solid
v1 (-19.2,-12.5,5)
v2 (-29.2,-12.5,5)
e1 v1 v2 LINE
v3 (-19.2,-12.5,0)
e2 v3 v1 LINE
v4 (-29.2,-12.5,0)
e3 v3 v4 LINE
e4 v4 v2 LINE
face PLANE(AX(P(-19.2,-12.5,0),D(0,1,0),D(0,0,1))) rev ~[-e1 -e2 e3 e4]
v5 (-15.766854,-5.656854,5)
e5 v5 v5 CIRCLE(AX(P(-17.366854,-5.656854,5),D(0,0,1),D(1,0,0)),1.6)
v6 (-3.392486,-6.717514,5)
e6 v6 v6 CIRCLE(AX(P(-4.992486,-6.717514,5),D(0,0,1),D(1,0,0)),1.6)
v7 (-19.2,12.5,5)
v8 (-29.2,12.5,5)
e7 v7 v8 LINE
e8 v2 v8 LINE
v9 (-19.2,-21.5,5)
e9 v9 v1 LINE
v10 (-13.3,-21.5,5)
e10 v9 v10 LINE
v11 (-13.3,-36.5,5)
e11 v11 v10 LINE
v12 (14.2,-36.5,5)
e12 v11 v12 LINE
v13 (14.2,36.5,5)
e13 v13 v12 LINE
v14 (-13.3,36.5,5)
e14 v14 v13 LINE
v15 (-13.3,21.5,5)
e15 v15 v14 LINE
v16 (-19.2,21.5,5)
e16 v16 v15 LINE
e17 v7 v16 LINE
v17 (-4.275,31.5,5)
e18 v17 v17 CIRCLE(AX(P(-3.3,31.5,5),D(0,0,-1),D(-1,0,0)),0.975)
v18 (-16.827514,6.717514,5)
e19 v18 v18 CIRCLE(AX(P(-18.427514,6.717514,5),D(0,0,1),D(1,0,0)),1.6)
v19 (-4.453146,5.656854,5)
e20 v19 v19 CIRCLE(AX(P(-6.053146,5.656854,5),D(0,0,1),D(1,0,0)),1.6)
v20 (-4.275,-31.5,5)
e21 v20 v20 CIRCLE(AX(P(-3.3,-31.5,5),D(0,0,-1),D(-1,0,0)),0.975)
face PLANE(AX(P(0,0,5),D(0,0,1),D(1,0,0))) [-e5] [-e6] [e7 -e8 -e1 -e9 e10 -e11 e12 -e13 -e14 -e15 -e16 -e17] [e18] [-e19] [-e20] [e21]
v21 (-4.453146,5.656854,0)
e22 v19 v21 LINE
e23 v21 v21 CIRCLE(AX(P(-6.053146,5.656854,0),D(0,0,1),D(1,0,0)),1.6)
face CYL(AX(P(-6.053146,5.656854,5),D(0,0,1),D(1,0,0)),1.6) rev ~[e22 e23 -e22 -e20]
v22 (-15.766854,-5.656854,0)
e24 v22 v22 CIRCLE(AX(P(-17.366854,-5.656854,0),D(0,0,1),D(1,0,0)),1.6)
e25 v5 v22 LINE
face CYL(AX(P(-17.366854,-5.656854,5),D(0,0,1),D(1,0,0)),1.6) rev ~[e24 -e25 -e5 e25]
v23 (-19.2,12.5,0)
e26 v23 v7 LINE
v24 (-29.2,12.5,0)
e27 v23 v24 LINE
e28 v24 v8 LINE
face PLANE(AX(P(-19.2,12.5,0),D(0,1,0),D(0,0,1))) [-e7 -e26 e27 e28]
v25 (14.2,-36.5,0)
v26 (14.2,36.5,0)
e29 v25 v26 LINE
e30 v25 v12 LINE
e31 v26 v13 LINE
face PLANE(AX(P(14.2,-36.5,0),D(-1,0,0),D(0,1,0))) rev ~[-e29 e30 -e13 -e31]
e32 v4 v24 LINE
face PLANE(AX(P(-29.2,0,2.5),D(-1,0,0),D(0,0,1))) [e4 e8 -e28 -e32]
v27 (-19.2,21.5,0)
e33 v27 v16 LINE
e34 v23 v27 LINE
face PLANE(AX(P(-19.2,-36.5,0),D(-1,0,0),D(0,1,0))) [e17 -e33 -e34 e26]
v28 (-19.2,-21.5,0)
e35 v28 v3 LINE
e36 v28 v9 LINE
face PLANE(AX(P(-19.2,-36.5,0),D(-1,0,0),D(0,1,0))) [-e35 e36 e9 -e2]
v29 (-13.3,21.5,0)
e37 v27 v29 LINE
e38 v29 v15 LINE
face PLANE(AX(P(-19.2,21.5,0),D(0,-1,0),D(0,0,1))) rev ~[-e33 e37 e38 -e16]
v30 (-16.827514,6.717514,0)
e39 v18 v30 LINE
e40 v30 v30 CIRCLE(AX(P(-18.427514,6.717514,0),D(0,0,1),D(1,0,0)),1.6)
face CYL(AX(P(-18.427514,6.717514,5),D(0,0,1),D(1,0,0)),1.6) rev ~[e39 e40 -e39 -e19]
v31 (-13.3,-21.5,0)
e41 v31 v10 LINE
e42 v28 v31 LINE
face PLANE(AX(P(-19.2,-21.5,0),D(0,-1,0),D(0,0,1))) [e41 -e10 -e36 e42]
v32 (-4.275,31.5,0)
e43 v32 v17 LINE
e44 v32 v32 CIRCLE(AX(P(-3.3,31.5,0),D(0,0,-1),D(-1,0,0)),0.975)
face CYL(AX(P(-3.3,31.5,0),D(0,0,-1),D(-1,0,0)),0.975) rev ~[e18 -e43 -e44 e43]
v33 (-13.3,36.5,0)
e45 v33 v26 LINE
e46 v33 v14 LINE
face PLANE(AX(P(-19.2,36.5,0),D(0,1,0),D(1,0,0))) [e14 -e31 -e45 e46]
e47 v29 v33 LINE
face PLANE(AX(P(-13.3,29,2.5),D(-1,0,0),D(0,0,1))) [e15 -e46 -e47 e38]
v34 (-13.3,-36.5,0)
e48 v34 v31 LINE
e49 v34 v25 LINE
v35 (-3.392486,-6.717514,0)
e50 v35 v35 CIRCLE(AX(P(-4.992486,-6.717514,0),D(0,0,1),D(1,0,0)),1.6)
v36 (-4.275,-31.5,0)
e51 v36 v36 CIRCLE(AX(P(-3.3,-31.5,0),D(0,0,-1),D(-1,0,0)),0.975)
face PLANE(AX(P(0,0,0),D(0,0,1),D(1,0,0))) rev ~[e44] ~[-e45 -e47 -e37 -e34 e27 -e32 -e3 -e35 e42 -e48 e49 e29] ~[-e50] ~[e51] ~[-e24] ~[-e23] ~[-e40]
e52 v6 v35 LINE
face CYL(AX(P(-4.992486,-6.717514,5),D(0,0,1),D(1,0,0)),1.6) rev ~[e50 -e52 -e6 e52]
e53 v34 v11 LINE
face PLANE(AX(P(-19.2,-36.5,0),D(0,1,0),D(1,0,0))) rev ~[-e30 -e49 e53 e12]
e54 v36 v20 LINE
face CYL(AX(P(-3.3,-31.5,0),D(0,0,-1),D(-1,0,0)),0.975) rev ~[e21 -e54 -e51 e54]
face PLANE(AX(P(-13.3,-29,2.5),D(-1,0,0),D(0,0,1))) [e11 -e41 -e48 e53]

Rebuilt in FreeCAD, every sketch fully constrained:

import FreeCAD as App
import Part
import Sketcher

V = App.Vector


def add_polygon(sketch, points):
    """Adds a closed chain of lines whose ends are joined by coincident constraints."""
    first, n = sketch.GeometryCount, len(points)
    for a, b in zip(points, points[1:] + points[:1]):
        sketch.addGeometry(Part.LineSegment(App.Vector(*a, 0), App.Vector(*b, 0)), False)
    for i in range(n):
        sketch.addConstraint(Sketcher.Constraint("Coincident", first + i, 2, first + (i + 1) % n, 1))

doc = App.newDocument("Part")
params = doc.addObject("Spreadsheet::Sheet", "Params")
for row, (alias, value) in enumerate([
    ("sketch1_height", "73 mm"),
    ("sketch1_width", "38.4 mm"),
    ("pad1_length", "5 mm"),
    ("sketch2_width", "25 mm"),
    ("sketch2_height", "5 mm"),
    ("pad2_length", "10 mm"),
    ("sketch3_diameter", "3.2 mm"),
    ("pocket1_length", "25 mm"),
    ("sketch4_width", "15 mm"),
    ("sketch4_height", "5 mm"),
    ("pocket2_length", "5.9 mm"),
    ("sketch5_width", "5 mm"),
    ("sketch5_height", "73 mm"),
    ("pocket3_length", "10 mm"),
    ("sketch6_diameter", "1.95 mm"),
    ("pocket4_length", "13 mm"),
], start=1):
    params.set(f"A{row}", alias)
    params.set(f"B{row}", "=" + value)
    params.setAlias(f"B{row}", alias)

body = doc.addObject("PartDesign::Body", "Body")

# Sketch on XY plane
sketch1 = body.newObject("Sketcher::SketchObject", "Sketch")
sketch1.AttachmentSupport = (doc.getObject("XY_Plane"), [""])
sketch1.MapMode = "FlatFace"
add_polygon(sketch1, [(-19, 36), (-19, -36), (19, -36), (19, 36)])  # lines 0-3
sketch1.addConstraint([
    Sketcher.Constraint("Vertical", 0),
    Sketcher.Constraint("Horizontal", 1),
    Sketcher.Constraint("Vertical", 2),
    Sketcher.Constraint("Horizontal", 3),
    Sketcher.Constraint("Symmetric", 0, 2, 2, 2, -1, 1),
    Sketcher.Constraint("DistanceY", 0, 2, 0, 1, 73.0),
    Sketcher.Constraint("DistanceX", 1, 1, 1, 2, 38.4),
])
sketch1.setExpression("Constraints[9]", "Params.sketch1_height")
sketch1.setExpression("Constraints[10]", "Params.sketch1_width")
pad1 = body.newObject("PartDesign::Pad", "Pad")
pad1.Profile = sketch1
pad1.setExpression("Length", "Params.pad1_length")

# Sketch on YZ plane
sketch2 = body.newObject("Sketcher::SketchObject", "Sketch001")
sketch2.AttachmentSupport = (doc.getObject("YZ_Plane"), [""])
sketch2.MapMode = "FlatFace"
sketch2.AttachmentOffset = App.Placement(V(0, 0, -19.2), App.Rotation())
add_polygon(sketch2, [(12, 0), (-12, 0), (-12, 5), (12, 5)])  # lines 0-3
sketch2.addConstraint([
    Sketcher.Constraint("Horizontal", 0),
    Sketcher.Constraint("Vertical", 1),
    Sketcher.Constraint("Horizontal", 2),
    Sketcher.Constraint("Vertical", 3),
    Sketcher.Constraint("Symmetric", 0, 2, 3, 2, -1, 1),
    Sketcher.Constraint("DistanceX", 0, 2, 0, 1, 25.0),
    Sketcher.Constraint("DistanceY", 1, 1, 1, 2, 5.0),
])
sketch2.setExpression("Constraints[9]", "Params.sketch2_width")
sketch2.setExpression("Constraints[10]", "Params.sketch2_height")
pad2 = body.newObject("PartDesign::Pad", "Pad001")
pad2.Profile = sketch2
pad2.setExpression("Length", "Params.pad2_length")
pad2.Reversed = True

# Sketch on XY plane
sketch3 = body.newObject("Sketcher::SketchObject", "Sketch002")
sketch3.AttachmentSupport = (doc.getObject("XY_Plane"), [""])
sketch3.MapMode = "FlatFace"
sketch3.AttachmentOffset = App.Placement(V(0, 0, 5), App.Rotation())
sketch3.addGeometry([
    Part.Circle(V(-18.4, 6.7, 0), V(0, 0, 1), 1.6),
    Part.Circle(V(-6.1, 5.7, 0), V(0, 0, 1), 1.6),
    Part.Circle(V(-17.4, -5.7, 0), V(0, 0, 1), 1.6),
    Part.Circle(V(-5, -6.7, 0), V(0, 0, 1), 1.6),
], False)
sketch3.addConstraint([
    Sketcher.Constraint("Equal", 0, 1),
    Sketcher.Constraint("Equal", 1, 2),
    Sketcher.Constraint("Equal", 2, 3),
    Sketcher.Constraint("Diameter", 0, 3.2),
    Sketcher.Constraint("DistanceX", 0, 3, 1, 3, 12.374369),
    Sketcher.Constraint("DistanceY", 1, 3, 0, 3, 1.06066),
    Sketcher.Constraint("DistanceX", 0, 3, 2, 3, 1.06066),
    Sketcher.Constraint("DistanceY", 2, 3, 0, 3, 12.374369),
    Sketcher.Constraint("DistanceX", 1, 3, 3, 3, 1.06066),
    Sketcher.Constraint("DistanceY", 3, 3, 1, 3, 12.374369),
    Sketcher.Constraint("DistanceX", 0, 3, -1, 1, 18.427514),
    Sketcher.Constraint("DistanceY", -1, 1, 0, 3, 6.717514),
])
sketch3.setExpression("Constraints[3]", "Params.sketch3_diameter")
pocket1 = body.newObject("PartDesign::Pocket", "Pocket")
pocket1.Profile = sketch3
pocket1.setExpression("Length", "Params.pocket1_length")

# Sketch on YZ plane
sketch4 = body.newObject("Sketcher::SketchObject", "Sketch003")
sketch4.AttachmentSupport = (doc.getObject("YZ_Plane"), [""])
sketch4.MapMode = "FlatFace"
sketch4.AttachmentOffset = App.Placement(V(0, 0, -19.2), App.Rotation())
add_polygon(sketch4, [(36, 0), (22, 0), (22, 5), (36, 5)])  # lines 0-3
add_polygon(sketch4, [(-22, 0), (-36, 0), (-36, 5), (-22, 5)])  # lines 4-7
sketch4.addConstraint([
    Sketcher.Constraint("Horizontal", 0),
    Sketcher.Constraint("Vertical", 1),
    Sketcher.Constraint("Horizontal", 2),
    Sketcher.Constraint("Vertical", 3),
    Sketcher.Constraint("Horizontal", 4),
    Sketcher.Constraint("Vertical", 5),
    Sketcher.Constraint("Horizontal", 6),
    Sketcher.Constraint("Vertical", 7),
    Sketcher.Constraint("Symmetric", 3, 2, 4, 2, -1, 1),
    Sketcher.Constraint("Symmetric", 1, 2, 6, 2, -2),
    Sketcher.Constraint("PointOnObject", 0, 2, -1),
    Sketcher.Constraint("DistanceX", 0, 2, 0, 1, 15.0),
    Sketcher.Constraint("DistanceY", 1, 1, 1, 2, 5.0),
    Sketcher.Constraint("DistanceX", 4, 2, 0, 2, 58.0),
])
sketch4.setExpression("Constraints[19]", "Params.sketch4_width")
sketch4.setExpression("Constraints[20]", "Params.sketch4_height")
pocket2 = body.newObject("PartDesign::Pocket", "Pocket001")
pocket2.Profile = sketch4
pocket2.setExpression("Length", "Params.pocket2_length")
pocket2.Reversed = True

# Sketch on XY plane
sketch5 = body.newObject("Sketcher::SketchObject", "Sketch004")
sketch5.AttachmentSupport = (doc.getObject("XY_Plane"), [""])
sketch5.MapMode = "FlatFace"
add_polygon(sketch5, [(19, 36), (19, -36), (14, -36), (14, 36)])  # lines 0-3
sketch5.addConstraint([
    Sketcher.Constraint("Vertical", 0),
    Sketcher.Constraint("Horizontal", 1),
    Sketcher.Constraint("Vertical", 2),
    Sketcher.Constraint("Horizontal", 3),
    Sketcher.Constraint("DistanceX", 1, 2, 1, 1, 5.0),
    Sketcher.Constraint("DistanceY", 0, 2, 0, 1, 73.0),
    Sketcher.Constraint("DistanceX", -1, 1, 0, 2, 19.2),
    Sketcher.Constraint("DistanceY", 0, 2, -1, 1, 36.5),
])
sketch5.setExpression("Constraints[8]", "Params.sketch5_width")
sketch5.setExpression("Constraints[9]", "Params.sketch5_height")
pocket3 = body.newObject("PartDesign::Pocket", "Pocket002")
pocket3.Profile = sketch5
pocket3.setExpression("Length", "Params.pocket3_length")
pocket3.Reversed = True

# Sketch on XY plane
sketch6 = body.newObject("Sketcher::SketchObject", "Sketch005")
sketch6.AttachmentSupport = (doc.getObject("XY_Plane"), [""])
sketch6.MapMode = "FlatFace"
sketch6.addGeometry([
    Part.Circle(V(-3.3, 31.5, 0), V(0, 0, 1), 1),
    Part.Circle(V(-3.3, -31.5, 0), V(0, 0, 1), 1),
], False)
sketch6.addConstraint([
    Sketcher.Constraint("Equal", 0, 1),
    Sketcher.Constraint("Symmetric", 0, 3, 1, 3, -1),
    Sketcher.Constraint("Diameter", 0, 1.95),
    Sketcher.Constraint("DistanceY", 1, 3, 0, 3, 63.0),
    Sketcher.Constraint("DistanceX", 0, 3, -1, 1, 3.3),
])
sketch6.setExpression("Constraints[2]", "Params.sketch6_diameter")
pocket4 = body.newObject("PartDesign::Pocket", "Pocket003")
pocket4.Profile = sketch6
pocket4.setExpression("Length", "Params.pocket4_length")
pocket4.Reversed = True

doc.recompute()
